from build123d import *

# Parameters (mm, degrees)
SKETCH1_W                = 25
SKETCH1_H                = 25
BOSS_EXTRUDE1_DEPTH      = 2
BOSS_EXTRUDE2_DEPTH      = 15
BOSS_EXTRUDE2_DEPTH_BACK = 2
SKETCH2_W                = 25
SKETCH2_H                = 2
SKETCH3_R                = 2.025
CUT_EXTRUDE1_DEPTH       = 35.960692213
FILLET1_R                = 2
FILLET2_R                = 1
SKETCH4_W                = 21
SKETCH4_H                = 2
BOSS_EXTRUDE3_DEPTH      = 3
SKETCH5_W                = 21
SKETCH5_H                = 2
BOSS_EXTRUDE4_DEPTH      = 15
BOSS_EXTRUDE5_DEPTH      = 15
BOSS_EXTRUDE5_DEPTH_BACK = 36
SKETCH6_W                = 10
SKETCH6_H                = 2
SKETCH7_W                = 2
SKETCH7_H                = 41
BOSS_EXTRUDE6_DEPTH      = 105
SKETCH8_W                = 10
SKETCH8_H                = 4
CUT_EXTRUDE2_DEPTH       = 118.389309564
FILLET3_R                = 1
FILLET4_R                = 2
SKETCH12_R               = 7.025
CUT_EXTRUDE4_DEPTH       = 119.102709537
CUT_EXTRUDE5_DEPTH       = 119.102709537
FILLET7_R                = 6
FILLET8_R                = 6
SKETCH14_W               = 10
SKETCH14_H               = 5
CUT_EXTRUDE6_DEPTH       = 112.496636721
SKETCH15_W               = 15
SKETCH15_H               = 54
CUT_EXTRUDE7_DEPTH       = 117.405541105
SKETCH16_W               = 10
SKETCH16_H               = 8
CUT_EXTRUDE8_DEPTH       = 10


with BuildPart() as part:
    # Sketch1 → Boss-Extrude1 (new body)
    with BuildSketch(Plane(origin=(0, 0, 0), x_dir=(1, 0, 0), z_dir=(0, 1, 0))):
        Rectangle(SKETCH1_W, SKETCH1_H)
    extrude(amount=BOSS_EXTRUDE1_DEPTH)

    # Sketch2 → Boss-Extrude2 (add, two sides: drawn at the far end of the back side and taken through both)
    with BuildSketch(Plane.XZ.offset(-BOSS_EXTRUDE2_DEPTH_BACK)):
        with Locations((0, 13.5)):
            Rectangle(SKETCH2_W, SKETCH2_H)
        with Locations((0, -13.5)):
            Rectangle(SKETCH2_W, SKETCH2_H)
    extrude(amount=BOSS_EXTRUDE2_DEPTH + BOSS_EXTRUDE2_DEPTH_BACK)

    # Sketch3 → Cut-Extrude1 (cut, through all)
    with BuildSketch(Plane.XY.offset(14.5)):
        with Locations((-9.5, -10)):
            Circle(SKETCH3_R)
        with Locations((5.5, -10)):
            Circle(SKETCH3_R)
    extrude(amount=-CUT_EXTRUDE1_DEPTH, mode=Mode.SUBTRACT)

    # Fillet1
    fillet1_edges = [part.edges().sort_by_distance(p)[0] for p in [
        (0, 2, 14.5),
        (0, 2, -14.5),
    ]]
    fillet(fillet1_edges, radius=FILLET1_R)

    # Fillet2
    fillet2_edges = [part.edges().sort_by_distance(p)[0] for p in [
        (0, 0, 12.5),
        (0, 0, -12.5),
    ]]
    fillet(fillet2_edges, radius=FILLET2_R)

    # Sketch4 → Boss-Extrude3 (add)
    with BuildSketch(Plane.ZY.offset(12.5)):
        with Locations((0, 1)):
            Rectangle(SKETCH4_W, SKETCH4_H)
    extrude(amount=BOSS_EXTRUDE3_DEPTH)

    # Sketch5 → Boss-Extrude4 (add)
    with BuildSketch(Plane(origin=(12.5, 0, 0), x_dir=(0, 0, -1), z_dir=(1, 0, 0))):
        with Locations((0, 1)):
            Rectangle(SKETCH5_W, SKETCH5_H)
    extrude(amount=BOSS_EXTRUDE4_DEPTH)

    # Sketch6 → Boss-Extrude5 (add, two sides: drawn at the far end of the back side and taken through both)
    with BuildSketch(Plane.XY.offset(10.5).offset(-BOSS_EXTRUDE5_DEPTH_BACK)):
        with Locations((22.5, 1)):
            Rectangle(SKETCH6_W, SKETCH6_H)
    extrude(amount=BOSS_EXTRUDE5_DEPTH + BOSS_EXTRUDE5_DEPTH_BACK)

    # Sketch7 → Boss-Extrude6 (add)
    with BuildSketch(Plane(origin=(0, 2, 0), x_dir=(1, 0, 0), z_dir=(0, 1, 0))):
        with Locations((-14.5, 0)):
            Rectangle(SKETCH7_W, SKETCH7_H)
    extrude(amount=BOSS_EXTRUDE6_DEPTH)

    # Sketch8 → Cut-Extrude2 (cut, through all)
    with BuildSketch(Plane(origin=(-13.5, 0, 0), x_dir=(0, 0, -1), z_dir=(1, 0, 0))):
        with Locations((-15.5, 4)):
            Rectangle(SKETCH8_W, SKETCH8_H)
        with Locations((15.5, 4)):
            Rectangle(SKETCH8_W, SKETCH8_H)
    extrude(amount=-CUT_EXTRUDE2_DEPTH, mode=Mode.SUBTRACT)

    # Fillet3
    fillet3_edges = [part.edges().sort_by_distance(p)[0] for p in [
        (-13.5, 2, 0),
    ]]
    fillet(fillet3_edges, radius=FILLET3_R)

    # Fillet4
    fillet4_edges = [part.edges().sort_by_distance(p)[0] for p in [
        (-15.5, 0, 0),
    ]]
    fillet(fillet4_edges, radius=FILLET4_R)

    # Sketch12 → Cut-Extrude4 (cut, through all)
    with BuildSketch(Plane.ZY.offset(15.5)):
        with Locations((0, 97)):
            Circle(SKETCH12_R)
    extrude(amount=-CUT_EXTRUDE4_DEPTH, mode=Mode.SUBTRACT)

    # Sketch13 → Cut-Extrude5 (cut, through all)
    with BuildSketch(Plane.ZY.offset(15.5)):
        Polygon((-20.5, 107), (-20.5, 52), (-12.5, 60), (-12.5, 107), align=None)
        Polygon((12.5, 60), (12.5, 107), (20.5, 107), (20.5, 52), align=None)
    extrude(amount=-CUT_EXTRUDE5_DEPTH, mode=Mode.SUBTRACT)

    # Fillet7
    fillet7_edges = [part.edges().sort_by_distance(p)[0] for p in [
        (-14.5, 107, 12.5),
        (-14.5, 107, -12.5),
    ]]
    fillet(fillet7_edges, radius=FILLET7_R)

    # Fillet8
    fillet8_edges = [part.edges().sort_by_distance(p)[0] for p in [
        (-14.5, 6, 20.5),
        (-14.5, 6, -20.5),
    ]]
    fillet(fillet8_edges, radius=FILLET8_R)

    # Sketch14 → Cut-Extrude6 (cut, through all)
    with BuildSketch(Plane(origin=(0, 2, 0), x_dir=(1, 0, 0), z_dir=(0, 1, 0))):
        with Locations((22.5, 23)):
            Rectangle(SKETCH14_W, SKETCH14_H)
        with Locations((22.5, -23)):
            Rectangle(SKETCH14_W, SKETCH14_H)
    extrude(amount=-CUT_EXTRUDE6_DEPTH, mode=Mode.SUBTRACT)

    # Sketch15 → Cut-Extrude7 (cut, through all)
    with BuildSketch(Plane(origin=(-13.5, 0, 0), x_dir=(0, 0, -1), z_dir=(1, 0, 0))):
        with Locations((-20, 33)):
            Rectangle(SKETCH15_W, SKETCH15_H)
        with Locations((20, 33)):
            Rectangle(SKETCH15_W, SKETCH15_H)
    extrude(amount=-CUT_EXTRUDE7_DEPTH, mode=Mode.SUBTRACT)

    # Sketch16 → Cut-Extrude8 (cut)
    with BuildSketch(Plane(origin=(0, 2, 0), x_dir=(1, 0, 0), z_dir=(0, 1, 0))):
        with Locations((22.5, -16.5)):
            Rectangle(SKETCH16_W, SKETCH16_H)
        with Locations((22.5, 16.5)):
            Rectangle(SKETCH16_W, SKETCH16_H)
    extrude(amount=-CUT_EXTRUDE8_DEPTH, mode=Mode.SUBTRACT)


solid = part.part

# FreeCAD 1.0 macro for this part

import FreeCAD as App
import Part
import Sketcher


def edges_at(feature, points):
    """Names of the edges that pass closest to the given points."""
    edges = feature.Shape.Edges
    near = lambda p: min(range(len(edges)), key=lambda i: edges[i].distToShape(Part.Vertex(*p))[0])
    return sorted({f"Edge{near(p) + 1}" for p in points})


def add_polygon(sketch, points):
    """Adds a closed chain of lines whose ends are joined by coincident constraints."""
    first, n = sketch.GeometryCount, len(points)
    for a, b in zip(points, points[1:] + points[:1]):
        sketch.addGeometry(Part.LineSegment(App.Vector(*a, 0), App.Vector(*b, 0)), False)
    for i in range(n):
        sketch.addConstraint(Sketcher.Constraint("Coincident", first + i, 2, first + (i + 1) % n, 1))

doc = App.newDocument("Part")
body = doc.addObject("PartDesign::Body", "Body")

# Sketch on XZ plane
sketch1 = doc.addObject("Sketcher::SketchObject", "Sketch")
body.addObject(sketch1)
sketch1.AttachmentSupport = (doc.XZ_Plane, [""])
sketch1.MapMode = "FlatFace"
add_polygon(sketch1, [(-12, -12), (-12, 12), (12, 12), (12, -12)])  # lines 0-3
sketch1.addConstraint(Sketcher.Constraint("Vertical", 0))
sketch1.addConstraint(Sketcher.Constraint("Horizontal", 1))
sketch1.addConstraint(Sketcher.Constraint("Vertical", 2))
sketch1.addConstraint(Sketcher.Constraint("Horizontal", 3))
sketch1.addConstraint(Sketcher.Constraint("Symmetric", 0, 2, 2, 2, -1, 1))
sketch1.addConstraint(Sketcher.Constraint("Equal", 3, 0))
sketch1.addConstraint(Sketcher.Constraint("DistanceX", 1, 1, 1, 2, 25.0))
pad1 = doc.addObject("PartDesign::Pad", "Pad")
body.addObject(pad1)
pad1.Profile = sketch1
pad1.Length = 2
pad1.Reversed = True

# Sketch on XZ plane
sketch2 = doc.addObject("Sketcher::SketchObject", "Sketch001")
body.addObject(sketch2)
sketch2.AttachmentSupport = (doc.XZ_Plane, [""])
sketch2.MapMode = "FlatFace"
add_polygon(sketch2, [(-12.5, 14.5), (-12.5, 12.5), (12.5, 12.5), (12.5, 14.5)])  # lines 0-3
add_polygon(sketch2, [(-12.5, -12.5), (-12.5, -14.5), (12.5, -14.5), (12.5, -12.5)])  # lines 4-7
sketch2.addConstraint(Sketcher.Constraint("Vertical", 0))
sketch2.addConstraint(Sketcher.Constraint("Horizontal", 1))
sketch2.addConstraint(Sketcher.Constraint("Vertical", 2))
sketch2.addConstraint(Sketcher.Constraint("Horizontal", 3))
sketch2.addConstraint(Sketcher.Constraint("Vertical", 4))
sketch2.addConstraint(Sketcher.Constraint("Horizontal", 5))
sketch2.addConstraint(Sketcher.Constraint("Vertical", 6))
sketch2.addConstraint(Sketcher.Constraint("Horizontal", 7))
sketch2.addConstraint(Sketcher.Constraint("Symmetric", 2, 2, 4, 2, -1, 1))
sketch2.addConstraint(Sketcher.Constraint("Symmetric", 0, 2, 6, 2, -1, 1))
sketch2.addConstraint(Sketcher.Constraint("Vertical", 3, 2, 4, 2))
sketch2.addConstraint(Sketcher.Constraint("DistanceX", 1, 1, 1, 2, 25.0))
sketch2.addConstraint(Sketcher.Constraint("DistanceY", 0, 2, 0, 1, 2.0))
sketch2.addConstraint(Sketcher.Constraint("DistanceY", 4, 2, 0, 2, 27.0))
pad2 = doc.addObject("PartDesign::Pad", "Pad001")
body.addObject(pad2)
pad2.Profile = sketch2
pad2.Type = "TwoLengths"
pad2.Length = 15
pad2.Length2 = 2

# Sketch on XY plane
sketch3 = doc.addObject("Sketcher::SketchObject", "Sketch002")
body.addObject(sketch3)
sketch3.AttachmentSupport = (doc.XY_Plane, [""])
sketch3.MapMode = "FlatFace"
sketch3.AttachmentOffset = App.Placement(App.Vector(0, 0, 14.5), App.Rotation())
sketch3.addGeometry(Part.Circle(App.Vector(-9.5, -10, 0), App.Vector(0, 0, 1), 2), False)
sketch3.addGeometry(Part.Circle(App.Vector(5.5, -10, 0), App.Vector(0, 0, 1), 2), False)
sketch3.addConstraint(Sketcher.Constraint("Equal", 0, 1))
sketch3.addConstraint(Sketcher.Constraint("Horizontal", 0, 3, 1, 3))
sketch3.addConstraint(Sketcher.Constraint("Diameter", 0, 4.05))
sketch3.addConstraint(Sketcher.Constraint("DistanceY", 0, 3, -1, 1, 10.0))
sketch3.addConstraint(Sketcher.Constraint("DistanceX", 0, 3, 1, 3, 15.0))
sketch3.addConstraint(Sketcher.Constraint("DistanceX", 0, 3, -1, 1, 9.5))
pocket1 = doc.addObject("PartDesign::Pocket", "Pocket")
body.addObject(pocket1)
pocket1.Profile = sketch3
pocket1.Type = "ThroughAll"
doc.recompute()

fillet = doc.addObject("PartDesign::Fillet", "Fillet")
body.addObject(fillet)
fillet.Base = (pocket1, edges_at(pocket1, [(0, 2, 14.5), (0, 2, -14.5)]))
fillet.Radius = 2
doc.recompute()

fillet2 = doc.addObject("PartDesign::Fillet", "Fillet001")
body.addObject(fillet2)
fillet2.Base = (fillet, edges_at(fillet, [(0, 0, 12.5), (0, 0, -12.5)]))
fillet2.Radius = 1

# Sketch on YZ plane
sketch4 = doc.addObject("Sketcher::SketchObject", "Sketch003")
body.addObject(sketch4)
sketch4.AttachmentSupport = (doc.YZ_Plane, [""])
sketch4.MapMode = "FlatFace"
sketch4.AttachmentOffset = App.Placement(App.Vector(0, 0, -12.5), App.Rotation())
add_polygon(sketch4, [(2, -10.5), (0, -10.5), (0, 10.5), (2, 10.5)])  # lines 0-3
sketch4.addConstraint(Sketcher.Constraint("Horizontal", 0))
sketch4.addConstraint(Sketcher.Constraint("Vertical", 1))
sketch4.addConstraint(Sketcher.Constraint("Horizontal", 2))
sketch4.addConstraint(Sketcher.Constraint("Vertical", 3))
sketch4.addConstraint(Sketcher.Constraint("Symmetric", 0, 2, 1, 2, -1, 1))
sketch4.addConstraint(Sketcher.Constraint("DistanceX", 0, 2, 0, 1, 2.0))
sketch4.addConstraint(Sketcher.Constraint("DistanceY", 1, 1, 1, 2, 21.0))
pad3 = doc.addObject("PartDesign::Pad", "Pad002")
body.addObject(pad3)
pad3.Profile = sketch4
pad3.Length = 3
pad3.Reversed = True

# Sketch on YZ plane
sketch5 = doc.addObject("Sketcher::SketchObject", "Sketch004")
body.addObject(sketch5)
sketch5.AttachmentSupport = (doc.YZ_Plane, [""])
sketch5.MapMode = "FlatFace"
sketch5.AttachmentOffset = App.Placement(App.Vector(0, 0, 12.5), App.Rotation())
add_polygon(sketch5, [(2, 10.5), (0, 10.5), (0, -10.5), (2, -10.5)])  # lines 0-3
sketch5.addConstraint(Sketcher.Constraint("Horizontal", 0))
sketch5.addConstraint(Sketcher.Constraint("Vertical", 1))
sketch5.addConstraint(Sketcher.Constraint("Horizontal", 2))
sketch5.addConstraint(Sketcher.Constraint("Vertical", 3))
sketch5.addConstraint(Sketcher.Constraint("Symmetric", 0, 2, 1, 2, -1, 1))
sketch5.addConstraint(Sketcher.Constraint("DistanceX", 0, 2, 0, 1, 2.0))
sketch5.addConstraint(Sketcher.Constraint("DistanceY", 1, 2, 1, 1, 21.0))
pad4 = doc.addObject("PartDesign::Pad", "Pad003")
body.addObject(pad4)
pad4.Profile = sketch5
pad4.Length = 15

# Sketch on XY plane
sketch6 = doc.addObject("Sketcher::SketchObject", "Sketch005")
body.addObject(sketch6)
sketch6.AttachmentSupport = (doc.XY_Plane, [""])
sketch6.MapMode = "FlatFace"
sketch6.AttachmentOffset = App.Placement(App.Vector(0, 0, 10.5), App.Rotation())
add_polygon(sketch6, [(17.5, 2), (17.5, 0), (27.5, 0), (27.5, 2)])  # lines 0-3
sketch6.addConstraint(Sketcher.Constraint("Vertical", 0))
sketch6.addConstraint(Sketcher.Constraint("Horizontal", 1))
sketch6.addConstraint(Sketcher.Constraint("Vertical", 2))
sketch6.addConstraint(Sketcher.Constraint("Horizontal", 3))
sketch6.addConstraint(Sketcher.Constraint("PointOnObject", 0, 2, -1))
sketch6.addConstraint(Sketcher.Constraint("DistanceX", 1, 1, 1, 2, 10.0))
sketch6.addConstraint(Sketcher.Constraint("DistanceY", 0, 2, 0, 1, 2.0))
sketch6.addConstraint(Sketcher.Constraint("DistanceX", -1, 1, 0, 2, 17.5))
pad5 = doc.addObject("PartDesign::Pad", "Pad004")
body.addObject(pad5)
pad5.Profile = sketch6
pad5.Type = "TwoLengths"
pad5.Length = 15
pad5.Length2 = 36

# Sketch on XZ plane
sketch7 = doc.addObject("Sketcher::SketchObject", "Sketch006")
body.addObject(sketch7)
sketch7.AttachmentSupport = (doc.XZ_Plane, [""])
sketch7.MapMode = "FlatFace"
sketch7.AttachmentOffset = App.Placement(App.Vector(0, 0, -2), App.Rotation())
add_polygon(sketch7, [(-15.5, -20.5), (-15.5, 20.5), (-13.5, 20.5), (-13.5, -20.5)])  # lines 0-3
sketch7.addConstraint(Sketcher.Constraint("Vertical", 0))
sketch7.addConstraint(Sketcher.Constraint("Horizontal", 1))
sketch7.addConstraint(Sketcher.Constraint("Vertical", 2))
sketch7.addConstraint(Sketcher.Constraint("Horizontal", 3))
sketch7.addConstraint(Sketcher.Constraint("DistanceX", 1, 1, 1, 2, 2.0))
sketch7.addConstraint(Sketcher.Constraint("DistanceY", 0, 1, 0, 2, 41.0))
sketch7.addConstraint(Sketcher.Constraint("DistanceX", 0, 2, -1, 1, 15.5))
sketch7.addConstraint(Sketcher.Constraint("DistanceY", -1, 1, 0, 2, 20.5))
pad6 = doc.addObject("PartDesign::Pad", "Pad005")
body.addObject(pad6)
pad6.Profile = sketch7
pad6.Length = 105
pad6.Reversed = True

# Sketch on YZ plane
sketch8 = doc.addObject("Sketcher::SketchObject", "Sketch007")
body.addObject(sketch8)
sketch8.AttachmentSupport = (doc.YZ_Plane, [""])
sketch8.MapMode = "FlatFace"
sketch8.AttachmentOffset = App.Placement(App.Vector(0, 0, -13.5), App.Rotation())
add_polygon(sketch8, [(6, 20.5), (2, 20.5), (2, 10.5), (6, 10.5)])  # lines 0-3
add_polygon(sketch8, [(6, -10.5), (2, -10.5), (2, -20.5), (6, -20.5)])  # lines 4-7
sketch8.addConstraint(Sketcher.Constraint("Horizontal", 0))
sketch8.addConstraint(Sketcher.Constraint("Vertical", 1))
sketch8.addConstraint(Sketcher.Constraint("Horizontal", 2))
sketch8.addConstraint(Sketcher.Constraint("Vertical", 3))
sketch8.addConstraint(Sketcher.Constraint("Horizontal", 4))
sketch8.addConstraint(Sketcher.Constraint("Vertical", 5))
sketch8.addConstraint(Sketcher.Constraint("Horizontal", 6))
sketch8.addConstraint(Sketcher.Constraint("Vertical", 7))
sketch8.addConstraint(Sketcher.Constraint("Symmetric", 1, 2, 4, 2, -1))
sketch8.addConstraint(Sketcher.Constraint("Symmetric", 3, 2, 6, 2, -1))
sketch8.addConstraint(Sketcher.Constraint("DistanceX", 0, 2, 0, 1, 4.0))
sketch8.addConstraint(Sketcher.Constraint("DistanceY", 1, 2, 1, 1, 10.0))
sketch8.addConstraint(Sketcher.Constraint("DistanceX", -1, 1, 0, 2, 2.0))
sketch8.addConstraint(Sketcher.Constraint("DistanceY", 4, 2, 1, 2, 21.0))
pocket2 = doc.addObject("PartDesign::Pocket", "Pocket001")
body.addObject(pocket2)
pocket2.Profile = sketch8
pocket2.Type = "ThroughAll"
doc.recompute()

fillet3 = doc.addObject("PartDesign::Fillet", "Fillet002")
body.addObject(fillet3)
fillet3.Base = (pocket2, edges_at(pocket2, [(-13.5, 2, 0)]))
fillet3.Radius = 1
doc.recompute()

fillet4 = doc.addObject("PartDesign::Fillet", "Fillet003")
body.addObject(fillet4)
fillet4.Base = (fillet3, edges_at(fillet3, [(-15.5, 0, 0)]))
fillet4.Radius = 2

# Sketch on YZ plane
sketch9 = doc.addObject("Sketcher::SketchObject", "Sketch008")
body.addObject(sketch9)
sketch9.AttachmentSupport = (doc.YZ_Plane, [""])
sketch9.MapMode = "FlatFace"
sketch9.AttachmentOffset = App.Placement(App.Vector(0, 0, -15.5), App.Rotation())
sketch9.addGeometry(Part.Circle(App.Vector(97, 0, 0), App.Vector(0, 0, 1), 7), False)
sketch9.addConstraint(Sketcher.Constraint("PointOnObject", 0, 3, -1))
sketch9.addConstraint(Sketcher.Constraint("Diameter", 0, 14.05))
sketch9.addConstraint(Sketcher.Constraint("DistanceX", -1, 1, 0, 3, 97.0))
pocket3 = doc.addObject("PartDesign::Pocket", "Pocket002")
body.addObject(pocket3)
pocket3.Profile = sketch9
pocket3.Type = "ThroughAll"
pocket3.Reversed = True

# Sketch on YZ plane
sketch10 = doc.addObject("Sketcher::SketchObject", "Sketch009")
body.addObject(sketch10)
sketch10.AttachmentSupport = (doc.YZ_Plane, [""])
sketch10.MapMode = "FlatFace"
sketch10.AttachmentOffset = App.Placement(App.Vector(0, 0, -15.5), App.Rotation())
add_polygon(sketch10, [(107, -20), (52, -20), (60, -12), (107, -12)])  # lines 0-3
add_polygon(sketch10, [(107, 12), (60, 12), (52, 20), (107, 20)])  # lines 4-7
sketch10.addConstraint(Sketcher.Constraint("Horizontal", 0))
sketch10.addConstraint(Sketcher.Constraint("Horizontal", 2))
sketch10.addConstraint(Sketcher.Constraint("Vertical", 3))
sketch10.addConstraint(Sketcher.Constraint("Horizontal", 4))
sketch10.addConstraint(Sketcher.Constraint("Horizontal", 6))
sketch10.addConstraint(Sketcher.Constraint("Vertical", 7))
sketch10.addConstraint(Sketcher.Constraint("Symmetric", 1, 2, 4, 2, -1))
sketch10.addConstraint(Sketcher.Constraint("Symmetric", 0, 2, 5, 2, -1))
sketch10.addConstraint(Sketcher.Constraint("Perpendicular", 1, 5))
sketch10.addConstraint(Sketcher.Constraint("Vertical", 3, 2, 6, 2))
sketch10.addConstraint(Sketcher.Constraint("DistanceX", 0, 2, 0, 1, 55.0))
sketch10.addConstraint(Sketcher.Constraint("DistanceX", 2, 1, 2, 2, 47.0))
sketch10.addConstraint(Sketcher.Constraint("DistanceX", -1, 1, 0, 2, 52.0))
sketch10.addConstraint(Sketcher.Constraint("DistanceY", 1, 2, 4, 2, 25.0))
pocket4 = doc.addObject("PartDesign::Pocket", "Pocket003")
body.addObject(pocket4)
pocket4.Profile = sketch10
pocket4.Type = "ThroughAll"
pocket4.Reversed = True
doc.recompute()

fillet5 = doc.addObject("PartDesign::Fillet", "Fillet004")
body.addObject(fillet5)
fillet5.Base = (pocket4, edges_at(pocket4, [(-14.5, 107, 12.5), (-14.5, 107, -12.5)]))
fillet5.Radius = 6
doc.recompute()

fillet6 = doc.addObject("PartDesign::Fillet", "Fillet005")
body.addObject(fillet6)
fillet6.Base = (fillet5, edges_at(fillet5, [(-14.5, 6, 20.5), (-14.5, 6, -20.5)]))
fillet6.Radius = 6

# Sketch on XZ plane
sketch11 = doc.addObject("Sketcher::SketchObject", "Sketch010")
body.addObject(sketch11)
sketch11.AttachmentSupport = (doc.XZ_Plane, [""])
sketch11.MapMode = "FlatFace"
sketch11.AttachmentOffset = App.Placement(App.Vector(0, 0, -2), App.Rotation())
add_polygon(sketch11, [(18, -26), (18, -20), (28, -20), (28, -26)])  # lines 0-3
add_polygon(sketch11, [(18, 20), (18, 26), (28, 26), (28, 20)])  # lines 4-7
sketch11.addConstraint(Sketcher.Constraint("Vertical", 0))
sketch11.addConstraint(Sketcher.Constraint("Horizontal", 1))
sketch11.addConstraint(Sketcher.Constraint("Vertical", 2))
sketch11.addConstraint(Sketcher.Constraint("Horizontal", 3))
sketch11.addConstraint(Sketcher.Constraint("Vertical", 4))
sketch11.addConstraint(Sketcher.Constraint("Horizontal", 5))
sketch11.addConstraint(Sketcher.Constraint("Vertical", 6))
sketch11.addConstraint(Sketcher.Constraint("Horizontal", 7))
sketch11.addConstraint(Sketcher.Constraint("Symmetric", 3, 2, 4, 2, -1))
sketch11.addConstraint(Sketcher.Constraint("Symmetric", 1, 2, 6, 2, -1))
sketch11.addConstraint(Sketcher.Constraint("DistanceX", 1, 1, 1, 2, 10.0))
sketch11.addConstraint(Sketcher.Constraint("DistanceY", 0, 1, 0, 2, 5.0))
sketch11.addConstraint(Sketcher.Constraint("DistanceY", 0, 2, 4, 2, 46.0))
sketch11.addConstraint(Sketcher.Constraint("DistanceX", -1, 1, 0, 2, 17.5))
pocket5 = doc.addObject("PartDesign::Pocket", "Pocket004")
body.addObject(pocket5)
pocket5.Profile = sketch11
pocket5.Type = "ThroughAll"
pocket5.Reversed = True

# Sketch on YZ plane
sketch12 = doc.addObject("Sketcher::SketchObject", "Sketch011")
body.addObject(sketch12)
sketch12.AttachmentSupport = (doc.YZ_Plane, [""])
sketch12.MapMode = "FlatFace"
sketch12.AttachmentOffset = App.Placement(App.Vector(0, 0, -13.5), App.Rotation())
add_polygon(sketch12, [(60, 28), (6, 28), (6, 12), (60, 12)])  # lines 0-3
add_polygon(sketch12, [(60, -12), (6, -12), (6, -28), (60, -28)])  # lines 4-7
sketch12.addConstraint(Sketcher.Constraint("Horizontal", 0))
sketch12.addConstraint(Sketcher.Constraint("Vertical", 1))
sketch12.addConstraint(Sketcher.Constraint("Horizontal", 2))
sketch12.addConstraint(Sketcher.Constraint("Vertical", 3))
sketch12.addConstraint(Sketcher.Constraint("Horizontal", 4))
sketch12.addConstraint(Sketcher.Constraint("Vertical", 5))
sketch12.addConstraint(Sketcher.Constraint("Horizontal", 6))
sketch12.addConstraint(Sketcher.Constraint("Vertical", 7))
sketch12.addConstraint(Sketcher.Constraint("Symmetric", 1, 2, 4, 2, -1))
sketch12.addConstraint(Sketcher.Constraint("Symmetric", 3, 2, 6, 2, -1))
sketch12.addConstraint(Sketcher.Constraint("DistanceX", 0, 2, 0, 1, 54.0))
sketch12.addConstraint(Sketcher.Constraint("DistanceY", 1, 2, 1, 1, 15.0))
sketch12.addConstraint(Sketcher.Constraint("DistanceX", -1, 1, 0, 2, 6.0))
sketch12.addConstraint(Sketcher.Constraint("DistanceY", 4, 2, 1, 2, 25.0))
pocket6 = doc.addObject("PartDesign::Pocket", "Pocket005")
body.addObject(pocket6)
pocket6.Profile = sketch12
pocket6.Type = "ThroughAll"

# Sketch on XZ plane
sketch13 = doc.addObject("Sketcher::SketchObject", "Sketch012")
body.addObject(sketch13)
sketch13.AttachmentSupport = (doc.XZ_Plane, [""])
sketch13.MapMode = "FlatFace"
sketch13.AttachmentOffset = App.Placement(App.Vector(0, 0, -2), App.Rotation())
add_polygon(sketch13, [(18, 12), (18, 20), (28, 20), (28, 12)])  # lines 0-3
add_polygon(sketch13, [(18, -20), (18, -12), (28, -12), (28, -20)])  # lines 4-7
sketch13.addConstraint(Sketcher.Constraint("Vertical", 0))
sketch13.addConstraint(Sketcher.Constraint("Horizontal", 1))
sketch13.addConstraint(Sketcher.Constraint("Vertical", 2))
sketch13.addConstraint(Sketcher.Constraint("Horizontal", 3))
sketch13.addConstraint(Sketcher.Constraint("Vertical", 4))
sketch13.addConstraint(Sketcher.Constraint("Horizontal", 5))
sketch13.addConstraint(Sketcher.Constraint("Vertical", 6))
sketch13.addConstraint(Sketcher.Constraint("Horizontal", 7))
sketch13.addConstraint(Sketcher.Constraint("Symmetric", 3, 2, 4, 2, -1))
sketch13.addConstraint(Sketcher.Constraint("Symmetric", 1, 2, 6, 2, -1))
sketch13.addConstraint(Sketcher.Constraint("DistanceX", 1, 1, 1, 2, 10.0))
sketch13.addConstraint(Sketcher.Constraint("DistanceY", 0, 1, 0, 2, 8.0))
sketch13.addConstraint(Sketcher.Constraint("DistanceY", 4, 2, 3, 2, 25.0))
sketch13.addConstraint(Sketcher.Constraint("DistanceX", -1, 1, 0, 2, 17.5))
pocket7 = doc.addObject("PartDesign::Pocket", "Pocket006")
body.addObject(pocket7)
pocket7.Profile = sketch13
pocket7.Length = 10
pocket7.Reversed = True

doc.recompute()
